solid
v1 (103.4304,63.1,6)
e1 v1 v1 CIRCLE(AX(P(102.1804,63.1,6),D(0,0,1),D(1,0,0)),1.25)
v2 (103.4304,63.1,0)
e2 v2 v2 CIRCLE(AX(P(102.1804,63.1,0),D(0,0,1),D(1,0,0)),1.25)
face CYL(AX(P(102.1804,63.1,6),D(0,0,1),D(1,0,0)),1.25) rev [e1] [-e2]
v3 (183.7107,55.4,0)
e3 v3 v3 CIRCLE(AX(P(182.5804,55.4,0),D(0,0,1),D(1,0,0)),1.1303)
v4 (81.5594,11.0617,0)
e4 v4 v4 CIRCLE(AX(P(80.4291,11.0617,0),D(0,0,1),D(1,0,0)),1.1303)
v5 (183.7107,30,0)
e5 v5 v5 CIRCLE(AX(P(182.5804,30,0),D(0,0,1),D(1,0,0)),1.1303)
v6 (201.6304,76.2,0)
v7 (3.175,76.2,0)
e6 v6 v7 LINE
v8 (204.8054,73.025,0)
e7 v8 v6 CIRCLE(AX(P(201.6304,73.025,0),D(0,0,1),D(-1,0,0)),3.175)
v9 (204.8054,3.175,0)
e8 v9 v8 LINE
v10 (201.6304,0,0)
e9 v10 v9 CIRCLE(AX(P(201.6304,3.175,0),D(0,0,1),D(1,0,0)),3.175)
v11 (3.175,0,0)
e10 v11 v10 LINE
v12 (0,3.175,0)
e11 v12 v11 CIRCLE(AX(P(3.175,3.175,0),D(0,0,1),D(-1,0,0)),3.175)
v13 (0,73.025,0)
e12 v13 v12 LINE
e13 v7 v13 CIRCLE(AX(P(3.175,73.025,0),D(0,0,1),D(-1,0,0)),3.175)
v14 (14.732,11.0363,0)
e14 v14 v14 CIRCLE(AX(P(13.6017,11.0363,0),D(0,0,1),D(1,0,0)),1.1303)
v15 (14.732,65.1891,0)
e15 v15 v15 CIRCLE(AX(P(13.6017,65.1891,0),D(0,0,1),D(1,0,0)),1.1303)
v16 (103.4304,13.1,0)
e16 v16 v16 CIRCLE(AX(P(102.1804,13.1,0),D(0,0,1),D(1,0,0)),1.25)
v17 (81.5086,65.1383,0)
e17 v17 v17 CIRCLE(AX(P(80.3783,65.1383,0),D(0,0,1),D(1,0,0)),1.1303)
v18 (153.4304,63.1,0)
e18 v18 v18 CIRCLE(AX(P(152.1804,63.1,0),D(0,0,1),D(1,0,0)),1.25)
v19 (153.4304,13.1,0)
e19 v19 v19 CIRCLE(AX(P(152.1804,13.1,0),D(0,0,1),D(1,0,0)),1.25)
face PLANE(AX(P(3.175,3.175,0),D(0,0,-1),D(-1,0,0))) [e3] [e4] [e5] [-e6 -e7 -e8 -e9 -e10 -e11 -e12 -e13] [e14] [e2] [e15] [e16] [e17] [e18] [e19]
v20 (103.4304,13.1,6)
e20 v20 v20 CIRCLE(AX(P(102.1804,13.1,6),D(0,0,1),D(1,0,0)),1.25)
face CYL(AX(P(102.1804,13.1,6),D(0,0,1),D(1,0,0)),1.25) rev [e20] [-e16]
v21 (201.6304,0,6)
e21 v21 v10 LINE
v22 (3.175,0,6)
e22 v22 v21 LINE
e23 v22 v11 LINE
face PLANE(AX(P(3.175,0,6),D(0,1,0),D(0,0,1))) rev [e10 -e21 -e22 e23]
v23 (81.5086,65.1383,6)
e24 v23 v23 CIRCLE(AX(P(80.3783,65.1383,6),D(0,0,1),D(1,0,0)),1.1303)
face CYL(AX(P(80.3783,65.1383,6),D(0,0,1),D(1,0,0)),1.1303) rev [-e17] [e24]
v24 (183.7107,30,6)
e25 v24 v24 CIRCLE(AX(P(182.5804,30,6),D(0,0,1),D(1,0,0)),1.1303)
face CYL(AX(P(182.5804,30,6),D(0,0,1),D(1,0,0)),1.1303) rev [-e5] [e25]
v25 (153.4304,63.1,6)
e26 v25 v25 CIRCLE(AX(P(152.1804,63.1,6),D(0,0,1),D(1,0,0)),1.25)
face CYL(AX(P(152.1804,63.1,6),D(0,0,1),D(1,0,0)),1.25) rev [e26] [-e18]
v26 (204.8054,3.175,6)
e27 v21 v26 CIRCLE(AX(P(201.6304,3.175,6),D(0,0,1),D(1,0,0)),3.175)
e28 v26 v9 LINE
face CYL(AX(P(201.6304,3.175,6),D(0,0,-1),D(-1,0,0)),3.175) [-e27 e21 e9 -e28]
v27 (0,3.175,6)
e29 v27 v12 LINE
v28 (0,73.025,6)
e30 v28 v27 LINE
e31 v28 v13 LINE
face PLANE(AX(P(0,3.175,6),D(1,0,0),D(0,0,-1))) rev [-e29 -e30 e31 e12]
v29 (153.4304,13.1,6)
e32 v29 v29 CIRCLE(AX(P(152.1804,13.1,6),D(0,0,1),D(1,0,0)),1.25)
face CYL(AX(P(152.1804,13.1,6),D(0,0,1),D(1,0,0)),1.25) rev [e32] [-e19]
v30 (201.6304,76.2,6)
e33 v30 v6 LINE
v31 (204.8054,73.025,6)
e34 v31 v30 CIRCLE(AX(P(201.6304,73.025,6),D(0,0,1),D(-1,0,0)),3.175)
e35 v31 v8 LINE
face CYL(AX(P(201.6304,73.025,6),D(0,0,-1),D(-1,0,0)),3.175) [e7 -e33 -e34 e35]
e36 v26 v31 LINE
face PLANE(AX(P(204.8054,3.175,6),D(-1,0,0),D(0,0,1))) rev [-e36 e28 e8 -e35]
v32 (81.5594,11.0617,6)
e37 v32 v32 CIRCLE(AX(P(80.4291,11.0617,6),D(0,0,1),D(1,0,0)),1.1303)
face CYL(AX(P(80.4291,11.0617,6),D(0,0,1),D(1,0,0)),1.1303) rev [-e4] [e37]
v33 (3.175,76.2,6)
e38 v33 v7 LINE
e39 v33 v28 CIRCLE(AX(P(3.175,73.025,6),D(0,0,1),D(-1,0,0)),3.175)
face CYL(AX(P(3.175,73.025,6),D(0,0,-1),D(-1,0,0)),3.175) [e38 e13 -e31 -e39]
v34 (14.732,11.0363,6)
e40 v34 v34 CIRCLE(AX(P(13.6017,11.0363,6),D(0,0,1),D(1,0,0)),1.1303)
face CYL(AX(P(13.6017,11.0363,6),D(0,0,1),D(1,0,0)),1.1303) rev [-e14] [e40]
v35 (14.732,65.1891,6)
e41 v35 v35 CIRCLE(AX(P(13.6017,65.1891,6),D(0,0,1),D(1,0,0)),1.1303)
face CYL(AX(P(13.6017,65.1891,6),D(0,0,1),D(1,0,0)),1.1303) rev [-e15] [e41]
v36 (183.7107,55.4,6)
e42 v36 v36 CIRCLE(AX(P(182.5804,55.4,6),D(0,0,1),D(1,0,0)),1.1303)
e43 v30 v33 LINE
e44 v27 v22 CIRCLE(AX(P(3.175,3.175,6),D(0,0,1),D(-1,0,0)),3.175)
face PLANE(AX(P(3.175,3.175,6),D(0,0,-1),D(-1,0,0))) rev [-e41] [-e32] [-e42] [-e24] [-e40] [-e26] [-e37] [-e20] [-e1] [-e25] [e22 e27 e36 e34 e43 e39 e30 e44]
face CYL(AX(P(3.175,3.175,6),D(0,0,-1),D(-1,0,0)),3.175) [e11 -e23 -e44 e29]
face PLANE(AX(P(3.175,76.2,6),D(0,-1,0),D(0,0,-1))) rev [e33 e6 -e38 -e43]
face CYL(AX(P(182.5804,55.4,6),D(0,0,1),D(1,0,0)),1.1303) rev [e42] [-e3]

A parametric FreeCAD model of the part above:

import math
import FreeCAD as App
import Part
import Sketcher

V = App.Vector
Q = App.Units.Quantity

doc = App.newDocument("Part")
body = doc.addObject("PartDesign::Body", "Body")

# Sketch on XY plane
sketch1 = body.newObject("Sketcher::SketchObject", "Sketch")
sketch1.AttachmentSupport = (doc.getObject("XY_Plane"), [""])
sketch1.MapMode = "FlatFace"
sketch1.addGeometry([
    Part.LineSegment(V(3.2, 0, 0), V(201.6, 0, 0)),  # 0
    Part.ArcOfCircle(Part.Circle(V(201.6, 3.2, 0), V(0, 0, 1), 3.2), math.radians(-90), math.radians(0)),  # 1
    Part.LineSegment(V(204.8, 3.2, 0), V(204.8, 73, 0)),  # 2
    Part.ArcOfCircle(Part.Circle(V(201.6, 73, 0), V(0, 0, 1), 3.2), math.radians(0), math.radians(90)),  # 3
    Part.LineSegment(V(201.6, 76.2, 0), V(3.2, 76.2, 0)),  # 4
    Part.ArcOfCircle(Part.Circle(V(3.2, 73, 0), V(0, 0, 1), 3.2), math.radians(90), math.radians(180)),  # 5
    Part.LineSegment(V(0, 73, 0), V(0, 3.2, 0)),  # 6
    Part.ArcOfCircle(Part.Circle(V(3.2, 3.2, 0), V(0, 0, 1), 3.2), math.radians(-180), math.radians(-90)),  # 7
], False)
sketch1.addConstraint([
    Sketcher.Constraint("Tangent", 0, 2, 1, 1),
    Sketcher.Constraint("Tangent", 1, 2, 2, 1),
    Sketcher.Constraint("Tangent", 2, 2, 3, 1),
    Sketcher.Constraint("Tangent", 3, 2, 4, 1),
    Sketcher.Constraint("Tangent", 4, 2, 5, 1),
    Sketcher.Constraint("Tangent", 5, 2, 6, 1),
    Sketcher.Constraint("Tangent", 6, 2, 7, 1),
    Sketcher.Constraint("Tangent", 7, 2, 0, 1),
    Sketcher.Constraint("Horizontal", 0),
    Sketcher.Constraint("Vertical", 2),
    Sketcher.Constraint("Horizontal", 4),
    Sketcher.Constraint("Vertical", 6),
    Sketcher.Constraint("Equal", 1, 3),
    Sketcher.Constraint("Equal", 3, 5),
    Sketcher.Constraint("Equal", 5, 7),
    Sketcher.Constraint("PointOnObject", 0, 2, -1),
    Sketcher.Constraint("PointOnObject", 5, 2, -2),
    Sketcher.Constraint("DistanceY", -1, 1, 3, 2, Q("3 in")),
    Sketcher.Constraint("Radius", 1, Q("0.125 in")),
    Sketcher.Constraint("DistanceX", 0, 1, 0, 2, Q("198.4554 mm")),
])
pad1 = body.newObject("PartDesign::Pad", "Pad")
pad1.Profile = sketch1
pad1.Length = 6

# Sketch on XY plane
sketch2 = body.newObject("Sketcher::SketchObject", "Sketch001")
sketch2.AttachmentSupport = (doc.getObject("XY_Plane"), [""])
sketch2.MapMode = "FlatFace"
sketch2.AttachmentOffset = App.Placement(V(0, 0, 6), App.Rotation())
sketch2.addGeometry([
    Part.Circle(V(13.6, 65.2, 0), V(0, 0, 1), 1.1),  # 0
    Part.Circle(V(13.6, 11, 0), V(0, 0, 1), 1.1),  # 1
    Part.Circle(V(80.4, 11.1, 0), V(0, 0, 1), 1.1),  # 2
    Part.Circle(V(80.4, 65.1, 0), V(0, 0, 1), 1.1),  # 3
    Part.Circle(V(182.6, 30, 0), V(0, 0, 1), 1.1),  # 4
    Part.Circle(V(182.6, 55.4, 0), V(0, 0, 1), 1.1),  # 5
], False)
sketch2.addConstraint([
    Sketcher.Constraint("Equal", 0, 1),
    Sketcher.Constraint("Equal", 1, 2),
    Sketcher.Constraint("Equal", 2, 3),
    Sketcher.Constraint("Equal", 3, 4),
    Sketcher.Constraint("Equal", 4, 5),
    Sketcher.Constraint("Vertical", 0, 3, 1, 3),
    Sketcher.Constraint("Vertical", 4, 3, 5, 3),
    Sketcher.Constraint("Diameter", 0, Q("0.089 in")),
    Sketcher.Constraint("DistanceY", 4, 3, 5, 3, Q("1 in")),
    Sketcher.Constraint("DistanceY", 1, 3, 3, 3, Q("2.13 in")),
    Sketcher.Constraint("DistanceY", 1, 3, 0, 3, Q("2.132 in")),
    Sketcher.Constraint("DistanceX", 1, 3, 2, 3, Q("2.631 in")),
    Sketcher.Constraint("DistanceY", 1, 3, 2, 3, Q("0.001 in")),
    Sketcher.Constraint("DistanceX", 3, 3, 2, 3, Q("0.002 in")),
    Sketcher.Constraint("DistanceX", -1, 1, 0, 3, Q("0.5355 in")),
    Sketcher.Constraint("DistanceY", -1, 1, 0, 3, Q("2.5665 in")),
    Sketcher.Constraint("DistanceX", -1, 1, 4, 3, Q("182.5804 mm")),
    Sketcher.Constraint("DistanceY", -1, 1, 4, 3, Q("30 mm")),
])
doc.recompute()
hole = body.newObject("PartDesign::Hole", "Hole")
hole.Profile = sketch2
hole.ThreadType = "None"
hole.Diameter = Q("0.089 in")
hole.DepthType = "ThroughAll"

# Sketch on XY plane
sketch3 = body.newObject("Sketcher::SketchObject", "Sketch002")
sketch3.AttachmentSupport = (doc.getObject("XY_Plane"), [""])
sketch3.MapMode = "FlatFace"
sketch3.AttachmentOffset = App.Placement(V(0, 0, 6), App.Rotation())
sketch3.addGeometry([
    Part.Circle(V(102.2, 63.1, 0), V(0, 0, 1), 1.2),
    Part.Circle(V(152.2, 63.1, 0), V(0, 0, 1), 1.2),
    Part.Circle(V(152.2, 13.1, 0), V(0, 0, 1), 1.2),
    Part.Circle(V(102.2, 13.1, 0), V(0, 0, 1), 1.2),
], False)
sketch3.addConstraint([
    Sketcher.Constraint("Equal", 0, 1),
    Sketcher.Constraint("Equal", 1, 2),
    Sketcher.Constraint("Equal", 2, 3),
    Sketcher.Constraint("Horizontal", 0, 3, 1, 3),
    Sketcher.Constraint("Horizontal", 2, 3, 3, 3),
    Sketcher.Constraint("Vertical", 1, 3, 2, 3),
    Sketcher.Constraint("Vertical", 0, 3, 3, 3),
    Sketcher.Constraint("Diameter", 0, Q("2.5 mm")),
    Sketcher.Constraint("DistanceX", -1, 1, 0, 3, Q("102.1804 mm")),
    Sketcher.Constraint("DistanceY", -1, 1, 0, 3, Q("63.1 mm")),
    Sketcher.Constraint("DistanceX", -1, 1, 1, 3, Q("152.1804 mm")),
    Sketcher.Constraint("DistanceY", -1, 1, 2, 3, Q("13.1 mm")),
])
doc.recompute()
hole2 = body.newObject("PartDesign::Hole", "Hole001")
hole2.Profile = sketch3
hole2.ThreadType = "None"
hole2.Diameter = 2.5
hole2.DepthType = "ThroughAll"

doc.recompute()
